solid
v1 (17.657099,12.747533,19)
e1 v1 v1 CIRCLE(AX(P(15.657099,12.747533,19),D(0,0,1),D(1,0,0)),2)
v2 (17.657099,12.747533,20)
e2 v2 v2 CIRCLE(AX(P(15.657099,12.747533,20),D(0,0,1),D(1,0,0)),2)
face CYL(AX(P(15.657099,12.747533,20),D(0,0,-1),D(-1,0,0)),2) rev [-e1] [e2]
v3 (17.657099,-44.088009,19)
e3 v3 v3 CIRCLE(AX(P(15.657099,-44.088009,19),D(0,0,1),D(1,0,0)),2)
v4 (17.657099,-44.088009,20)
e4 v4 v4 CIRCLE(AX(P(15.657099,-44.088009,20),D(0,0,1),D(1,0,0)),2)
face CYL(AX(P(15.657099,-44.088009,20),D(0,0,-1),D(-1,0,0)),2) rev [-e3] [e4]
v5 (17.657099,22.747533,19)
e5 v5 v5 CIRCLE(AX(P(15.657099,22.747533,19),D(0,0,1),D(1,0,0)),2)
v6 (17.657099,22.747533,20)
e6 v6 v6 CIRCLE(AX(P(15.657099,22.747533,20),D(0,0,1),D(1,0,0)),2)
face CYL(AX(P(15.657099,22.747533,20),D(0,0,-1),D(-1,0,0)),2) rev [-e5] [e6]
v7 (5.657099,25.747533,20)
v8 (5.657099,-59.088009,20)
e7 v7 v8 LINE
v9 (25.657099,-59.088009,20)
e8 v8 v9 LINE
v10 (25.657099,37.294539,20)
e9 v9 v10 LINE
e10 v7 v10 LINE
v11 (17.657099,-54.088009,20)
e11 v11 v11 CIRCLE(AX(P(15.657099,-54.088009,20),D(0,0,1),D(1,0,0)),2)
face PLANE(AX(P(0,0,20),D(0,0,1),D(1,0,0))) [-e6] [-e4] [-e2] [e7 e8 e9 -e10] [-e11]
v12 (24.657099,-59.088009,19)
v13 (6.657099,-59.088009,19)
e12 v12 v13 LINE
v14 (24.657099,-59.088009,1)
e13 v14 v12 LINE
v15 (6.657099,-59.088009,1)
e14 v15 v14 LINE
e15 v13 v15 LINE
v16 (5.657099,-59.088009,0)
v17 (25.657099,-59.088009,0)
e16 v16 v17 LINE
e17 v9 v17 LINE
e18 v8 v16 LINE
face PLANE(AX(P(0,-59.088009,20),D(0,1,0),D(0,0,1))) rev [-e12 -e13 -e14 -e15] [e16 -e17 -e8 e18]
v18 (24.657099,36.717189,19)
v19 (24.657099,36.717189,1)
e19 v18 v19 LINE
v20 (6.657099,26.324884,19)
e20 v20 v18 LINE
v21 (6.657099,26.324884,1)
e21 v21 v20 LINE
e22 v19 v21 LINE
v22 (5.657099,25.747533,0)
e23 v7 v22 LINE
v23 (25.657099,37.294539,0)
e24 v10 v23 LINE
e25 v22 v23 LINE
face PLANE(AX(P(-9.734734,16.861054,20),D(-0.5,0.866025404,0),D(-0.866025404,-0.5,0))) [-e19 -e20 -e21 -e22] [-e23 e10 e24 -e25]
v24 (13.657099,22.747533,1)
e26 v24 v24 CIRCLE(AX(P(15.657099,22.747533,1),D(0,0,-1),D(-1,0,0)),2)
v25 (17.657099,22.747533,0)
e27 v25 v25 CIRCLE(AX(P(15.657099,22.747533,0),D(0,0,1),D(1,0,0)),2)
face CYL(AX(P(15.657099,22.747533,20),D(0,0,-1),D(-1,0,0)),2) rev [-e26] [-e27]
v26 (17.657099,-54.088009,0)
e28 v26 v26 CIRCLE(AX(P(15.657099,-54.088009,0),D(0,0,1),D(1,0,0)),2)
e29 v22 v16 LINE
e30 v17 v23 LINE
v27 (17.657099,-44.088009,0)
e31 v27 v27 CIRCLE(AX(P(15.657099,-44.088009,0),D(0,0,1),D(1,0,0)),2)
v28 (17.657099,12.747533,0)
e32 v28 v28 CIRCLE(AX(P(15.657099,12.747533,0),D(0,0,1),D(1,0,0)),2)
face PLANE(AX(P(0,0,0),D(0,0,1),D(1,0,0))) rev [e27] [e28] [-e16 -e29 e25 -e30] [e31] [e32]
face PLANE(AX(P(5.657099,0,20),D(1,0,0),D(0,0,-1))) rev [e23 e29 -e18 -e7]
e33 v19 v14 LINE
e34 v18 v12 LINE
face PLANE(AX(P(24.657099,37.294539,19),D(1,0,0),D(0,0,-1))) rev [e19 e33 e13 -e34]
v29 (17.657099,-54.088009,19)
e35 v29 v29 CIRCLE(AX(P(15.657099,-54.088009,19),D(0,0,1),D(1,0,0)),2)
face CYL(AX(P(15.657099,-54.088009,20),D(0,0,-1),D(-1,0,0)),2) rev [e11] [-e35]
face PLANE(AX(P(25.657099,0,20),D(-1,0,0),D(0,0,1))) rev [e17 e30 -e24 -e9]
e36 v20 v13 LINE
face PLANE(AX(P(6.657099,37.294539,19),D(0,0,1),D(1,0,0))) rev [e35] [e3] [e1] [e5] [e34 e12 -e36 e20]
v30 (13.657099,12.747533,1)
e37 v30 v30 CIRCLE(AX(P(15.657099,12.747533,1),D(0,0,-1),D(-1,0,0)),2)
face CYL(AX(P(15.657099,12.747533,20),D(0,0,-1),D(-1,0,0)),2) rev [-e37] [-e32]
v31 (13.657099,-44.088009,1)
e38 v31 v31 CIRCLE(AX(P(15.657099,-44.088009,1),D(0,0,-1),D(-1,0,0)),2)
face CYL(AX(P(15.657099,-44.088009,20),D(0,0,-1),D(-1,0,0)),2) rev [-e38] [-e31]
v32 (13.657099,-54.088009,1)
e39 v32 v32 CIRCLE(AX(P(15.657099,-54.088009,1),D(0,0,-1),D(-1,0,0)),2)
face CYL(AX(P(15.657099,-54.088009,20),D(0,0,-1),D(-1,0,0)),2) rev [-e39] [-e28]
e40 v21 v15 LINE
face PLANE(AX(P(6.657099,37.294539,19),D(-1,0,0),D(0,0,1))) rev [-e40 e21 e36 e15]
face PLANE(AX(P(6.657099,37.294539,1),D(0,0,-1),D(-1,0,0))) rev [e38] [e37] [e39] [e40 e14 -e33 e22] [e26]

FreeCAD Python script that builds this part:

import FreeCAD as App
import Part
import Sketcher
from FreeCAD import Vector
Q = App.Units.Quantity

doc = App.newDocument("Part")
body = doc.addObject("PartDesign::Body", "Body")

sketch1 = body.newObject("Sketcher::SketchObject", "Sketch")
sketch1.AttachmentSupport = (doc.getObject("XY_Plane"), [""])
sketch1.MapMode = "FlatFace"
sketch1.addGeometry([
    Part.LineSegment(Vector(25.657099, 37.294539, 0), Vector(5.657099, 25.747533, 0)),
    Part.LineSegment(Vector(5.657099, 25.747533, 0), Vector(5.657099, -59.088009, 0)),
    Part.LineSegment(Vector(5.657099, -59.088009, 0), Vector(25.657099, -59.088009, 0)),
    Part.LineSegment(Vector(25.657099, -59.088009, 0), Vector(25.657099, 37.294539, 0)),
    Part.Circle(Vector(15.657099, -54.088009, 0), Vector(0, 0, 1), 2),
    Part.Circle(Vector(15.657099, -44.088009, 0), Vector(0, 0, 1), 2),
    Part.Circle(Vector(15.657099, 12.747533, 0), Vector(0, 0, 1), 2),
    Part.Circle(Vector(15.657099, 22.747533, 0), Vector(0, 0, 1), 2),
], False)
sketch1.addConstraint([
    Sketcher.Constraint("Coincident", 0, 2, 1, 1),
    Sketcher.Constraint("Coincident", 1, 2, 2, 1),
    Sketcher.Constraint("Coincident", 2, 2, 3, 1),
    Sketcher.Constraint("Coincident", 3, 2, 0, 1),
    Sketcher.Constraint("Vertical", 1),
    Sketcher.Constraint("Horizontal", 2),
    Sketcher.Constraint("Vertical", 3),
    Sketcher.Constraint("Equal", 4, 5),
    Sketcher.Constraint("Equal", 5, 6),
    Sketcher.Constraint("Equal", 6, 7),
    Sketcher.Constraint("Vertical", 4, 3, 5, 3),
    Sketcher.Constraint("Vertical", 5, 3, 6, 3),
    Sketcher.Constraint("Vertical", 6, 3, 7, 3),
    Sketcher.Constraint("Diameter", 4, 4.0),
    Sketcher.Constraint("DistanceX", 2, 1, 2, 2, 20.0),
    Sketcher.Constraint("Angle", 0, Q("-150 deg")),
    Sketcher.Constraint("DistanceY", 4, 3, 5, 3, 10.0),
    Sketcher.Constraint("DistanceY", 6, 3, 7, 3, 10.0),
    Sketcher.Constraint("DistanceX", 0, 2, 7, 3, 10.0),
    Sketcher.Constraint("DistanceY", 7, 3, 0, 2, 3.0),
    Sketcher.Constraint("DistanceY", 1, 2, 4, 3, 5.0),
    Sketcher.Constraint("DistanceX", -1, 1, 4, 3, 15.657099),
    Sketcher.Constraint("DistanceY", 1, 2, 1, 1, 84.835542),
    Sketcher.Constraint("DistanceY", 4, 3, -1, 1, 54.088009),
])
pad1 = body.newObject("PartDesign::Pad", "Pad")
pad1.Profile = sketch1
pad1.Length = 20

sketch2 = body.newObject("Sketcher::SketchObject", "Sketch001")
sketch2.AttachmentSupport = (doc.getObject("XZ_Plane"), [""])
sketch2.MapMode = "FlatFace"
sketch2.AttachmentOffset = App.Placement(Vector(0, 0, 59.088009), App.Rotation())
sketch2.addGeometry([
    Part.LineSegment(Vector(6.657099, 19, 0), Vector(6.657099, 1, 0)),
    Part.LineSegment(Vector(6.657099, 1, 0), Vector(24.657099, 1, 0)),
    Part.LineSegment(Vector(24.657099, 1, 0), Vector(24.657099, 19, 0)),
    Part.LineSegment(Vector(24.657099, 19, 0), Vector(6.657099, 19, 0)),
], False)
sketch2.addConstraint([
    Sketcher.Constraint("Coincident", 0, 2, 1, 1),
    Sketcher.Constraint("Coincident", 1, 2, 2, 1),
    Sketcher.Constraint("Coincident", 2, 2, 3, 1),
    Sketcher.Constraint("Coincident", 3, 2, 0, 1),
    Sketcher.Constraint("Vertical", 0),
    Sketcher.Constraint("Horizontal", 1),
    Sketcher.Constraint("Vertical", 2),
    Sketcher.Constraint("Horizontal", 3),
    Sketcher.Constraint("Equal", 3, 0),
    Sketcher.Constraint("DistanceX", 1, 1, 1, 2, 18.0),
    Sketcher.Constraint("DistanceY", -1, 1, 0, 2, 1.0),
    Sketcher.Constraint("DistanceX", -1, 1, 0, 2, 6.657099),
])
pocket1 = body.newObject("PartDesign::Pocket", "Pocket")
pocket1.Profile = sketch2
pocket1.Type = "ThroughAll"

doc.recompute()
